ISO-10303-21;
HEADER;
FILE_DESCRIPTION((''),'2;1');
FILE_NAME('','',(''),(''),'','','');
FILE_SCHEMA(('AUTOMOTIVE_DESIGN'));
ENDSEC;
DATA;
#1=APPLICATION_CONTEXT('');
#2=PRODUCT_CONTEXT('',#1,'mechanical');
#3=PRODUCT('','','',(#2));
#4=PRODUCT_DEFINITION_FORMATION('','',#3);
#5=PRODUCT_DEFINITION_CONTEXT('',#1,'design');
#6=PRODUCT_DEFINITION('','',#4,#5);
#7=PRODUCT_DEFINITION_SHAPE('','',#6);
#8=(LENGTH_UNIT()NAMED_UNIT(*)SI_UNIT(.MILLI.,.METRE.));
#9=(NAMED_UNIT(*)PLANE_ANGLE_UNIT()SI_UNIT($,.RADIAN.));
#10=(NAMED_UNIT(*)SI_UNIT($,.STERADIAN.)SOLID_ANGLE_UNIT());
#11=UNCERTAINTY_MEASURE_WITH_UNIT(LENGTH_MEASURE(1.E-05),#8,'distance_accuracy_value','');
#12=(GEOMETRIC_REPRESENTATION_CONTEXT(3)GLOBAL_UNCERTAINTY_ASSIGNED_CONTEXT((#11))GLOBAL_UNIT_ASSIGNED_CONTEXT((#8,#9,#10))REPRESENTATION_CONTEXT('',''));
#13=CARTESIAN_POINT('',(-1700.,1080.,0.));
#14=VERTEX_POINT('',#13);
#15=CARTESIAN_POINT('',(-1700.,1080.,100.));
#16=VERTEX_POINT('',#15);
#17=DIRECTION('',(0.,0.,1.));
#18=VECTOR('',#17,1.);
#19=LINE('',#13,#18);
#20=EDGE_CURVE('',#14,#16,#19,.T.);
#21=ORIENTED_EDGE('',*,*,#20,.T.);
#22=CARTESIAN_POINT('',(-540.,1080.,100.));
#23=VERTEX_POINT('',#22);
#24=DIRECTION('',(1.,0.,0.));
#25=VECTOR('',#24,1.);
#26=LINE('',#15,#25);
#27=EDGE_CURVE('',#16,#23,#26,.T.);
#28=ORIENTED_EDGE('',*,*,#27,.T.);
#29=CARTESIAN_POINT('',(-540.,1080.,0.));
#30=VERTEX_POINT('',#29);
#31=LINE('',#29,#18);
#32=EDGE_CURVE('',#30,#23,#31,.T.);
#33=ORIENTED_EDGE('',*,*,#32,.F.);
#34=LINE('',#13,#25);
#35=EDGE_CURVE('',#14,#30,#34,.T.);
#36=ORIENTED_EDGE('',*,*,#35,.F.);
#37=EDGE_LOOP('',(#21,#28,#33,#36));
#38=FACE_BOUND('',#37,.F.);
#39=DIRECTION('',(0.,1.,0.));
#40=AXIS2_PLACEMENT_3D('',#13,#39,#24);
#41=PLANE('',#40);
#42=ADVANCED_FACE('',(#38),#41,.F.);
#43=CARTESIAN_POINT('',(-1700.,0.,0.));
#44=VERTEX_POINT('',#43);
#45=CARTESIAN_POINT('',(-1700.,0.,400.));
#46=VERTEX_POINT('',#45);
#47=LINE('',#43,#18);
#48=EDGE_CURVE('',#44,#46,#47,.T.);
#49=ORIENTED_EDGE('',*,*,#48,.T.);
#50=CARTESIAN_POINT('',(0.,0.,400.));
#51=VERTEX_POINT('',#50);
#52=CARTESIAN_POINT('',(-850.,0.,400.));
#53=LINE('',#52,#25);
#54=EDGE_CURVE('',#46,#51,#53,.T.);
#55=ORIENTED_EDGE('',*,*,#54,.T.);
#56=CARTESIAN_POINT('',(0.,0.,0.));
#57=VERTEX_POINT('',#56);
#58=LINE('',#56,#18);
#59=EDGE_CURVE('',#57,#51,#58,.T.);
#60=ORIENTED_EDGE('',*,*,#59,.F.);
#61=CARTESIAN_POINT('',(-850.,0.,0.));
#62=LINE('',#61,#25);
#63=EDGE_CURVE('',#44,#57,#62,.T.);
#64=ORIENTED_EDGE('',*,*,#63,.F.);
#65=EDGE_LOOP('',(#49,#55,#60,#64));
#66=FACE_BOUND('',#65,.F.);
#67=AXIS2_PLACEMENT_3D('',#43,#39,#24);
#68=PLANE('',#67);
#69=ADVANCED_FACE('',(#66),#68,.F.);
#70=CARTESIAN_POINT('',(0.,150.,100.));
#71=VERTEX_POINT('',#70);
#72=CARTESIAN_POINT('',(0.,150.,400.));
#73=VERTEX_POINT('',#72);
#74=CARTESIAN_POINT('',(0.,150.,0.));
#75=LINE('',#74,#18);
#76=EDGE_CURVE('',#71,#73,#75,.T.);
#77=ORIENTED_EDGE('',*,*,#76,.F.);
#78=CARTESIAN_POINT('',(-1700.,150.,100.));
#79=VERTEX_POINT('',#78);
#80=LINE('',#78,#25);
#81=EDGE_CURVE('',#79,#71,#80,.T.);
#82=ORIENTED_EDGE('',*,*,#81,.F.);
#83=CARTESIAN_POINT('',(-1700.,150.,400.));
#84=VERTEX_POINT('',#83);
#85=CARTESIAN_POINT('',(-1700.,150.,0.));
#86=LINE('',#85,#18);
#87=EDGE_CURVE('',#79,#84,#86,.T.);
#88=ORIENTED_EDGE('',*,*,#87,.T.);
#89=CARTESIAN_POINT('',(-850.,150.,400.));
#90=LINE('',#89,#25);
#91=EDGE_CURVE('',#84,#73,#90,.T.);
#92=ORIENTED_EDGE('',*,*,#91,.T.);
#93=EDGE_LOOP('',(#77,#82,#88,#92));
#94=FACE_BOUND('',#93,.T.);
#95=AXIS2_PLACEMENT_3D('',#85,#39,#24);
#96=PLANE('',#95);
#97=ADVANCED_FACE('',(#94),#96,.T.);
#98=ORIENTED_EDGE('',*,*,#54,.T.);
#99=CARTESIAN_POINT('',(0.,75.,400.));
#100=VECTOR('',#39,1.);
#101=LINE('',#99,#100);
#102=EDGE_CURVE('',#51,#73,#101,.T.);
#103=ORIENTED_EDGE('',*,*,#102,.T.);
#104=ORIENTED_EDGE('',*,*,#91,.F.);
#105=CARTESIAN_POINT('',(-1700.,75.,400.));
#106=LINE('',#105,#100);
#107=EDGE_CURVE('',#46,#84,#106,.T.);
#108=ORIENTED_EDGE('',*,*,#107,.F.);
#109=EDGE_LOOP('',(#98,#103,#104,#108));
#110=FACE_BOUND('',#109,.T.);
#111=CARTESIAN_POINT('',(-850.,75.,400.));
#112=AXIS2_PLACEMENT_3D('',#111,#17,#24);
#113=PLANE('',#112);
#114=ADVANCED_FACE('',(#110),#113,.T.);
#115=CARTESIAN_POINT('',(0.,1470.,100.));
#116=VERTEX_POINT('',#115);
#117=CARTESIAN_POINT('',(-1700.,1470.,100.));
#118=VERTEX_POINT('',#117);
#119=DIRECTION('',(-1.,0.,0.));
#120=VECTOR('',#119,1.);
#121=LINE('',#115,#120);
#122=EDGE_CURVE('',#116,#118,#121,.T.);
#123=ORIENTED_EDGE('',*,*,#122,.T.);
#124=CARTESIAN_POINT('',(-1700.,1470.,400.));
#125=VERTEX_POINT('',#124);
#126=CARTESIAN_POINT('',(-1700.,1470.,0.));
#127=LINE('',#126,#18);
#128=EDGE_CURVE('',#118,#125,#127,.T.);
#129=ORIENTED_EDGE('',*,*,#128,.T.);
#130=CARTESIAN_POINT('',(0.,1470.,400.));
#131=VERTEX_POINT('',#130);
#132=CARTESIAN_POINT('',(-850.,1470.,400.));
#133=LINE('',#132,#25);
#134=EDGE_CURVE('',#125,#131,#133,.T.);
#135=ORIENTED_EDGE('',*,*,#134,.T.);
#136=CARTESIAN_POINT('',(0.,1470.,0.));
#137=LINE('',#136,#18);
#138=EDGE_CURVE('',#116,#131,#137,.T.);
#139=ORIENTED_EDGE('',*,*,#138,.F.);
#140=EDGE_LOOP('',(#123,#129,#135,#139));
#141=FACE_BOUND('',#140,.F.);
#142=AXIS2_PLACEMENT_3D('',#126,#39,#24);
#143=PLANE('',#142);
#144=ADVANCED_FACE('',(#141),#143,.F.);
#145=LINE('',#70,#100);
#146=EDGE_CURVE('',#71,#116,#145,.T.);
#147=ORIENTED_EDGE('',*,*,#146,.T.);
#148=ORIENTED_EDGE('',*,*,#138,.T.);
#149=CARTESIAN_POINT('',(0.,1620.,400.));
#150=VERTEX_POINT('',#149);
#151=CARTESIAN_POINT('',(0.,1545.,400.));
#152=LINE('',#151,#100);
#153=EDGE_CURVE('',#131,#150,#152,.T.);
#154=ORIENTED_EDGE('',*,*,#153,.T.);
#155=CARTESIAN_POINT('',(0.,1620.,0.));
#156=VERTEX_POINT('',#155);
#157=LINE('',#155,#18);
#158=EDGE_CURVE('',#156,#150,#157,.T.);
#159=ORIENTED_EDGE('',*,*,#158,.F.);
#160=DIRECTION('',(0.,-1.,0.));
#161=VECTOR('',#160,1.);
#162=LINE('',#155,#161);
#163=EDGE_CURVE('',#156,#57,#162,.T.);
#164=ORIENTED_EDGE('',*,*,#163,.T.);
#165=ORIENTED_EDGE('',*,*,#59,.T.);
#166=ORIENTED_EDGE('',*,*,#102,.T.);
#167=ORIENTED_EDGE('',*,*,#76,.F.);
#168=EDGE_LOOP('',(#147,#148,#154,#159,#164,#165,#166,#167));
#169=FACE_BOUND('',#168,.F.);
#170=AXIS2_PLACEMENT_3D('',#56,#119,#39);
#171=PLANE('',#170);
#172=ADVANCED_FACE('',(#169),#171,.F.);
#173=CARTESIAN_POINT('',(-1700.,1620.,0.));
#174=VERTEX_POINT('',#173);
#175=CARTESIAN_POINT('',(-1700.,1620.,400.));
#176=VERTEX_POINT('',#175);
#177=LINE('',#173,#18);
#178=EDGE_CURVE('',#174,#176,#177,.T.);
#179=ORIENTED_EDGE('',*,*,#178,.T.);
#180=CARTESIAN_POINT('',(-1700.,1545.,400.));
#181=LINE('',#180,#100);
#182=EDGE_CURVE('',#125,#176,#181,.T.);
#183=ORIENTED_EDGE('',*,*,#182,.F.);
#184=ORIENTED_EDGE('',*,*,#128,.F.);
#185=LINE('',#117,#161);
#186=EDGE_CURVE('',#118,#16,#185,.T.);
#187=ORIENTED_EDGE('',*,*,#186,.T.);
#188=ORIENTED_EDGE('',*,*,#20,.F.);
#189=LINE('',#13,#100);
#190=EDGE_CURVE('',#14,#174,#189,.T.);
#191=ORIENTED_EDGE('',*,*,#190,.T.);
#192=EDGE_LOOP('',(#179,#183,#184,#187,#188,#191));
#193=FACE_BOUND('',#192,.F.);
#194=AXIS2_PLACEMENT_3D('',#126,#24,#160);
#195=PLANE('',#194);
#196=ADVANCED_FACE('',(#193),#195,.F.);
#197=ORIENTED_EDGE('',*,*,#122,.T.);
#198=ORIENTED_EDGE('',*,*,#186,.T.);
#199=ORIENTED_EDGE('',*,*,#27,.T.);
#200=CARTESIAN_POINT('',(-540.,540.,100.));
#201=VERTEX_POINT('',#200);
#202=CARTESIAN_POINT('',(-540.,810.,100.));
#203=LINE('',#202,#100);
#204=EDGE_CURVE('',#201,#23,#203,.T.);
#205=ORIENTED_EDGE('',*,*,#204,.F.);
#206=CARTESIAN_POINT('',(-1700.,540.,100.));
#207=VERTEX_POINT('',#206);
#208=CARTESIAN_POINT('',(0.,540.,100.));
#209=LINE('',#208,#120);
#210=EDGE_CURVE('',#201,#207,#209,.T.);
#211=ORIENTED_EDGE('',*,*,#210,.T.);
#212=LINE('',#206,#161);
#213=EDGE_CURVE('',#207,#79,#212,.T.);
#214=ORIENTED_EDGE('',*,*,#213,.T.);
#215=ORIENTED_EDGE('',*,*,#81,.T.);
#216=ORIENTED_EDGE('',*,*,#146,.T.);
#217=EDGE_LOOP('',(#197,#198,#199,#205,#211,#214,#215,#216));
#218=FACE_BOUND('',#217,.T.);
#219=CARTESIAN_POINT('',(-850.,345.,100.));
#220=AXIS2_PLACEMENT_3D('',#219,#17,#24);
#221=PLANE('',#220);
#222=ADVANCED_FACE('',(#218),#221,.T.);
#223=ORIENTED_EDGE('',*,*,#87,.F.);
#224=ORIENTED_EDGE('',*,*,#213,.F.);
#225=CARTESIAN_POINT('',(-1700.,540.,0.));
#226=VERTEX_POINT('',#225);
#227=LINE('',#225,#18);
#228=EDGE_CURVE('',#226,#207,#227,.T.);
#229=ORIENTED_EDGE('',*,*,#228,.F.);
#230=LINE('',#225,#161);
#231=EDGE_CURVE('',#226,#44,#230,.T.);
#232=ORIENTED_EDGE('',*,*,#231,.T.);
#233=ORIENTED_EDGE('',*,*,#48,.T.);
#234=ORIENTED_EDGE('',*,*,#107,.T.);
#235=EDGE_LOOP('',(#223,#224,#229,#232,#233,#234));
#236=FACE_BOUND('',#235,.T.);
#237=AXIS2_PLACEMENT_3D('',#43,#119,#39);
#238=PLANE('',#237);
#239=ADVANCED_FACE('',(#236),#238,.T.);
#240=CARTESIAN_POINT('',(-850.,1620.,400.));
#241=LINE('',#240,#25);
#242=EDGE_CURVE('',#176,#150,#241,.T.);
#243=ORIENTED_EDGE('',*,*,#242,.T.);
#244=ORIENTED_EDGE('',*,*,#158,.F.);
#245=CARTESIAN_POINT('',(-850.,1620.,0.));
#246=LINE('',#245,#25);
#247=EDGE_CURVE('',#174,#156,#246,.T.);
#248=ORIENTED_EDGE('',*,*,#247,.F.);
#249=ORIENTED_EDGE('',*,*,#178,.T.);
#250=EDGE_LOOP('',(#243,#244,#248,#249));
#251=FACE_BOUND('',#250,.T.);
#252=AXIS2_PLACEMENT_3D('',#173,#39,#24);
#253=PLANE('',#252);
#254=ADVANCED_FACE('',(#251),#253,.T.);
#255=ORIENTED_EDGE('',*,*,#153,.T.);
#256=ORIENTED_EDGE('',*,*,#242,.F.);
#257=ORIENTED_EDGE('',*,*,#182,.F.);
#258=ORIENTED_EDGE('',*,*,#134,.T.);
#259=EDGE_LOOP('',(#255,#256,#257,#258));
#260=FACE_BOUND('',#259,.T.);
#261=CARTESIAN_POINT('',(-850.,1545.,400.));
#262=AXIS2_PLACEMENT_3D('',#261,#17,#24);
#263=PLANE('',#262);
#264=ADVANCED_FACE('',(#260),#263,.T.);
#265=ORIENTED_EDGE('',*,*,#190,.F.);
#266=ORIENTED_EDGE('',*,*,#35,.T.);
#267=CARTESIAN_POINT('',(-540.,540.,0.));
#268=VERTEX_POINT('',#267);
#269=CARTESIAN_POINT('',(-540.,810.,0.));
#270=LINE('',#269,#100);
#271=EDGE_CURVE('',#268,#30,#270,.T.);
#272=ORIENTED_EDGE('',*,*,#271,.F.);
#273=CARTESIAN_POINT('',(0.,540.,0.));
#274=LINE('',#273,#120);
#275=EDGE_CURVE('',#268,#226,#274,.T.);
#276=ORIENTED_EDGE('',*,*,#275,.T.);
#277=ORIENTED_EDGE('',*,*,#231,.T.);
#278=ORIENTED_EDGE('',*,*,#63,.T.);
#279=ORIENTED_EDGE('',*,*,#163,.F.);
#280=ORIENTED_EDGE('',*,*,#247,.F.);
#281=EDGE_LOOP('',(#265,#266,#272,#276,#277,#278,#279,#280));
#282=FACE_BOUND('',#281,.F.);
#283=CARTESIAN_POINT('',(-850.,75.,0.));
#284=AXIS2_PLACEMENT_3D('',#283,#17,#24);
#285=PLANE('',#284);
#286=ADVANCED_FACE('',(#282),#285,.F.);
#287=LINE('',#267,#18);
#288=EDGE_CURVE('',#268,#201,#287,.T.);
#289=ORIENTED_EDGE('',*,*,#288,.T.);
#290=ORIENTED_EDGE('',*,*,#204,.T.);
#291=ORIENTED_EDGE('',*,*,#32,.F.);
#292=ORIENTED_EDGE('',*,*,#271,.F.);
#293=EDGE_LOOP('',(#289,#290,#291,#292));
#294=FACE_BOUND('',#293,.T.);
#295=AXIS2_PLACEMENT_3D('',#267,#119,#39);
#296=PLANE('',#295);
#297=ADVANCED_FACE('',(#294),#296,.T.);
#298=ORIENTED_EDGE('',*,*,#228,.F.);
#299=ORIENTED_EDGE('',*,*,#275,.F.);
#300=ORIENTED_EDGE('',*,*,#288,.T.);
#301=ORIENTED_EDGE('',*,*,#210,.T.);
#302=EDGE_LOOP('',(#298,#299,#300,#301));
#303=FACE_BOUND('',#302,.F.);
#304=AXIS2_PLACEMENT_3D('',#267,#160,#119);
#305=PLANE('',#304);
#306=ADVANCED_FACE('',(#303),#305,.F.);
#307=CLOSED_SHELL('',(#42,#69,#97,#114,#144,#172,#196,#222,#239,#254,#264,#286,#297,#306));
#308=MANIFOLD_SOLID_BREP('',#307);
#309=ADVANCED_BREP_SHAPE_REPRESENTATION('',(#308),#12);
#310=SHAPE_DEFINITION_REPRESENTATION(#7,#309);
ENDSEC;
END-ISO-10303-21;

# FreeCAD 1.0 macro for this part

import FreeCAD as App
import Part
import Sketcher
from FreeCAD import Vector
Q = App.Units.Quantity


def add_polygon(sketch, points):
    """Adds a closed chain of lines whose ends are joined by coincident constraints."""
    first, n = sketch.GeometryCount, len(points)
    for a, b in zip(points, points[1:] + points[:1]):
        sketch.addGeometry(Part.LineSegment(App.Vector(*a, 0), App.Vector(*b, 0)), False)
    for i in range(n):
        sketch.addConstraint(Sketcher.Constraint("Coincident", first + i, 2, first + (i + 1) % n, 1))

doc = App.newDocument("Part")
body = doc.addObject("PartDesign::Body", "Body")

sketch1 = body.newObject("Sketcher::SketchObject", "Sketch")
sketch1.AttachmentSupport = (doc.getObject("XY_Plane"), [""])
sketch1.MapMode = "FlatFace"
add_polygon(sketch1, [(-1700, 150), (0, 150), (0, 1470), (-1700, 1470), (-1700, 1080), (-540, 1080), (-540, 540), (-1700, 540)])
sketch1.addConstraint([
    Sketcher.Constraint("Horizontal", 0),
    Sketcher.Constraint("Vertical", 1),
    Sketcher.Constraint("Horizontal", 2),
    Sketcher.Constraint("Vertical", 3),
    Sketcher.Constraint("Horizontal", 4),
    Sketcher.Constraint("Vertical", 5),
    Sketcher.Constraint("Horizontal", 6),
    Sketcher.Constraint("Vertical", 7),
    Sketcher.Constraint("PointOnObject", 0, 2, -2),
    Sketcher.Constraint("Vertical", 3, 2, 6, 2),
    Sketcher.Constraint("Equal", 3, 7),
    Sketcher.Constraint("DistanceX", 0, 1, 0, 2, Q("1700 mm")),
    Sketcher.Constraint("DistanceX", 4, 1, 4, 2, Q("1160 mm")),
    Sketcher.Constraint("DistanceY", 1, 1, 1, 2, Q("1320 mm")),
    Sketcher.Constraint("DistanceY", 3, 2, 3, 1, Q("390 mm")),
    Sketcher.Constraint("DistanceY", -1, 1, 0, 2, Q("150 mm")),
])
pad1 = body.newObject("PartDesign::Pad", "Pad")
pad1.Profile = sketch1
pad1.Length = 100

sketch2 = body.newObject("Sketcher::SketchObject", "Sketch001")
sketch2.AttachmentSupport = (doc.getObject("XY_Plane"), [""])
sketch2.MapMode = "FlatFace"
add_polygon(sketch2, [(-1700, 150), (-1700, 0), (0, 0), (0, 150)])
add_polygon(sketch2, [(-1700, 1620), (-1700, 1470), (0, 1470), (0, 1620)])
sketch2.addConstraint([
    Sketcher.Constraint("Vertical", 0),
    Sketcher.Constraint("Horizontal", 1),
    Sketcher.Constraint("Vertical", 2),
    Sketcher.Constraint("Horizontal", 3),
    Sketcher.Constraint("Vertical", 4),
    Sketcher.Constraint("Horizontal", 5),
    Sketcher.Constraint("Vertical", 6),
    Sketcher.Constraint("Horizontal", 7),
    Sketcher.Constraint("Coincident", 1, 2, -1, 1),
    Sketcher.Constraint("PointOnObject", 5, 2, -2),
    Sketcher.Constraint("Vertical", 3, 2, 4, 2),
    Sketcher.Constraint("Equal", 2, 4),
    Sketcher.Constraint("DistanceX", 1, 1, 1, 2, Q("1700 mm")),
    Sketcher.Constraint("DistanceY", 0, 2, 0, 1, Q("150 mm")),
    Sketcher.Constraint("DistanceY", -1, 1, 4, 2, Q("1470 mm")),
])
pad2 = body.newObject("PartDesign::Pad", "Pad001")
pad2.Profile = sketch2
pad2.Length = 400

doc.recompute()
